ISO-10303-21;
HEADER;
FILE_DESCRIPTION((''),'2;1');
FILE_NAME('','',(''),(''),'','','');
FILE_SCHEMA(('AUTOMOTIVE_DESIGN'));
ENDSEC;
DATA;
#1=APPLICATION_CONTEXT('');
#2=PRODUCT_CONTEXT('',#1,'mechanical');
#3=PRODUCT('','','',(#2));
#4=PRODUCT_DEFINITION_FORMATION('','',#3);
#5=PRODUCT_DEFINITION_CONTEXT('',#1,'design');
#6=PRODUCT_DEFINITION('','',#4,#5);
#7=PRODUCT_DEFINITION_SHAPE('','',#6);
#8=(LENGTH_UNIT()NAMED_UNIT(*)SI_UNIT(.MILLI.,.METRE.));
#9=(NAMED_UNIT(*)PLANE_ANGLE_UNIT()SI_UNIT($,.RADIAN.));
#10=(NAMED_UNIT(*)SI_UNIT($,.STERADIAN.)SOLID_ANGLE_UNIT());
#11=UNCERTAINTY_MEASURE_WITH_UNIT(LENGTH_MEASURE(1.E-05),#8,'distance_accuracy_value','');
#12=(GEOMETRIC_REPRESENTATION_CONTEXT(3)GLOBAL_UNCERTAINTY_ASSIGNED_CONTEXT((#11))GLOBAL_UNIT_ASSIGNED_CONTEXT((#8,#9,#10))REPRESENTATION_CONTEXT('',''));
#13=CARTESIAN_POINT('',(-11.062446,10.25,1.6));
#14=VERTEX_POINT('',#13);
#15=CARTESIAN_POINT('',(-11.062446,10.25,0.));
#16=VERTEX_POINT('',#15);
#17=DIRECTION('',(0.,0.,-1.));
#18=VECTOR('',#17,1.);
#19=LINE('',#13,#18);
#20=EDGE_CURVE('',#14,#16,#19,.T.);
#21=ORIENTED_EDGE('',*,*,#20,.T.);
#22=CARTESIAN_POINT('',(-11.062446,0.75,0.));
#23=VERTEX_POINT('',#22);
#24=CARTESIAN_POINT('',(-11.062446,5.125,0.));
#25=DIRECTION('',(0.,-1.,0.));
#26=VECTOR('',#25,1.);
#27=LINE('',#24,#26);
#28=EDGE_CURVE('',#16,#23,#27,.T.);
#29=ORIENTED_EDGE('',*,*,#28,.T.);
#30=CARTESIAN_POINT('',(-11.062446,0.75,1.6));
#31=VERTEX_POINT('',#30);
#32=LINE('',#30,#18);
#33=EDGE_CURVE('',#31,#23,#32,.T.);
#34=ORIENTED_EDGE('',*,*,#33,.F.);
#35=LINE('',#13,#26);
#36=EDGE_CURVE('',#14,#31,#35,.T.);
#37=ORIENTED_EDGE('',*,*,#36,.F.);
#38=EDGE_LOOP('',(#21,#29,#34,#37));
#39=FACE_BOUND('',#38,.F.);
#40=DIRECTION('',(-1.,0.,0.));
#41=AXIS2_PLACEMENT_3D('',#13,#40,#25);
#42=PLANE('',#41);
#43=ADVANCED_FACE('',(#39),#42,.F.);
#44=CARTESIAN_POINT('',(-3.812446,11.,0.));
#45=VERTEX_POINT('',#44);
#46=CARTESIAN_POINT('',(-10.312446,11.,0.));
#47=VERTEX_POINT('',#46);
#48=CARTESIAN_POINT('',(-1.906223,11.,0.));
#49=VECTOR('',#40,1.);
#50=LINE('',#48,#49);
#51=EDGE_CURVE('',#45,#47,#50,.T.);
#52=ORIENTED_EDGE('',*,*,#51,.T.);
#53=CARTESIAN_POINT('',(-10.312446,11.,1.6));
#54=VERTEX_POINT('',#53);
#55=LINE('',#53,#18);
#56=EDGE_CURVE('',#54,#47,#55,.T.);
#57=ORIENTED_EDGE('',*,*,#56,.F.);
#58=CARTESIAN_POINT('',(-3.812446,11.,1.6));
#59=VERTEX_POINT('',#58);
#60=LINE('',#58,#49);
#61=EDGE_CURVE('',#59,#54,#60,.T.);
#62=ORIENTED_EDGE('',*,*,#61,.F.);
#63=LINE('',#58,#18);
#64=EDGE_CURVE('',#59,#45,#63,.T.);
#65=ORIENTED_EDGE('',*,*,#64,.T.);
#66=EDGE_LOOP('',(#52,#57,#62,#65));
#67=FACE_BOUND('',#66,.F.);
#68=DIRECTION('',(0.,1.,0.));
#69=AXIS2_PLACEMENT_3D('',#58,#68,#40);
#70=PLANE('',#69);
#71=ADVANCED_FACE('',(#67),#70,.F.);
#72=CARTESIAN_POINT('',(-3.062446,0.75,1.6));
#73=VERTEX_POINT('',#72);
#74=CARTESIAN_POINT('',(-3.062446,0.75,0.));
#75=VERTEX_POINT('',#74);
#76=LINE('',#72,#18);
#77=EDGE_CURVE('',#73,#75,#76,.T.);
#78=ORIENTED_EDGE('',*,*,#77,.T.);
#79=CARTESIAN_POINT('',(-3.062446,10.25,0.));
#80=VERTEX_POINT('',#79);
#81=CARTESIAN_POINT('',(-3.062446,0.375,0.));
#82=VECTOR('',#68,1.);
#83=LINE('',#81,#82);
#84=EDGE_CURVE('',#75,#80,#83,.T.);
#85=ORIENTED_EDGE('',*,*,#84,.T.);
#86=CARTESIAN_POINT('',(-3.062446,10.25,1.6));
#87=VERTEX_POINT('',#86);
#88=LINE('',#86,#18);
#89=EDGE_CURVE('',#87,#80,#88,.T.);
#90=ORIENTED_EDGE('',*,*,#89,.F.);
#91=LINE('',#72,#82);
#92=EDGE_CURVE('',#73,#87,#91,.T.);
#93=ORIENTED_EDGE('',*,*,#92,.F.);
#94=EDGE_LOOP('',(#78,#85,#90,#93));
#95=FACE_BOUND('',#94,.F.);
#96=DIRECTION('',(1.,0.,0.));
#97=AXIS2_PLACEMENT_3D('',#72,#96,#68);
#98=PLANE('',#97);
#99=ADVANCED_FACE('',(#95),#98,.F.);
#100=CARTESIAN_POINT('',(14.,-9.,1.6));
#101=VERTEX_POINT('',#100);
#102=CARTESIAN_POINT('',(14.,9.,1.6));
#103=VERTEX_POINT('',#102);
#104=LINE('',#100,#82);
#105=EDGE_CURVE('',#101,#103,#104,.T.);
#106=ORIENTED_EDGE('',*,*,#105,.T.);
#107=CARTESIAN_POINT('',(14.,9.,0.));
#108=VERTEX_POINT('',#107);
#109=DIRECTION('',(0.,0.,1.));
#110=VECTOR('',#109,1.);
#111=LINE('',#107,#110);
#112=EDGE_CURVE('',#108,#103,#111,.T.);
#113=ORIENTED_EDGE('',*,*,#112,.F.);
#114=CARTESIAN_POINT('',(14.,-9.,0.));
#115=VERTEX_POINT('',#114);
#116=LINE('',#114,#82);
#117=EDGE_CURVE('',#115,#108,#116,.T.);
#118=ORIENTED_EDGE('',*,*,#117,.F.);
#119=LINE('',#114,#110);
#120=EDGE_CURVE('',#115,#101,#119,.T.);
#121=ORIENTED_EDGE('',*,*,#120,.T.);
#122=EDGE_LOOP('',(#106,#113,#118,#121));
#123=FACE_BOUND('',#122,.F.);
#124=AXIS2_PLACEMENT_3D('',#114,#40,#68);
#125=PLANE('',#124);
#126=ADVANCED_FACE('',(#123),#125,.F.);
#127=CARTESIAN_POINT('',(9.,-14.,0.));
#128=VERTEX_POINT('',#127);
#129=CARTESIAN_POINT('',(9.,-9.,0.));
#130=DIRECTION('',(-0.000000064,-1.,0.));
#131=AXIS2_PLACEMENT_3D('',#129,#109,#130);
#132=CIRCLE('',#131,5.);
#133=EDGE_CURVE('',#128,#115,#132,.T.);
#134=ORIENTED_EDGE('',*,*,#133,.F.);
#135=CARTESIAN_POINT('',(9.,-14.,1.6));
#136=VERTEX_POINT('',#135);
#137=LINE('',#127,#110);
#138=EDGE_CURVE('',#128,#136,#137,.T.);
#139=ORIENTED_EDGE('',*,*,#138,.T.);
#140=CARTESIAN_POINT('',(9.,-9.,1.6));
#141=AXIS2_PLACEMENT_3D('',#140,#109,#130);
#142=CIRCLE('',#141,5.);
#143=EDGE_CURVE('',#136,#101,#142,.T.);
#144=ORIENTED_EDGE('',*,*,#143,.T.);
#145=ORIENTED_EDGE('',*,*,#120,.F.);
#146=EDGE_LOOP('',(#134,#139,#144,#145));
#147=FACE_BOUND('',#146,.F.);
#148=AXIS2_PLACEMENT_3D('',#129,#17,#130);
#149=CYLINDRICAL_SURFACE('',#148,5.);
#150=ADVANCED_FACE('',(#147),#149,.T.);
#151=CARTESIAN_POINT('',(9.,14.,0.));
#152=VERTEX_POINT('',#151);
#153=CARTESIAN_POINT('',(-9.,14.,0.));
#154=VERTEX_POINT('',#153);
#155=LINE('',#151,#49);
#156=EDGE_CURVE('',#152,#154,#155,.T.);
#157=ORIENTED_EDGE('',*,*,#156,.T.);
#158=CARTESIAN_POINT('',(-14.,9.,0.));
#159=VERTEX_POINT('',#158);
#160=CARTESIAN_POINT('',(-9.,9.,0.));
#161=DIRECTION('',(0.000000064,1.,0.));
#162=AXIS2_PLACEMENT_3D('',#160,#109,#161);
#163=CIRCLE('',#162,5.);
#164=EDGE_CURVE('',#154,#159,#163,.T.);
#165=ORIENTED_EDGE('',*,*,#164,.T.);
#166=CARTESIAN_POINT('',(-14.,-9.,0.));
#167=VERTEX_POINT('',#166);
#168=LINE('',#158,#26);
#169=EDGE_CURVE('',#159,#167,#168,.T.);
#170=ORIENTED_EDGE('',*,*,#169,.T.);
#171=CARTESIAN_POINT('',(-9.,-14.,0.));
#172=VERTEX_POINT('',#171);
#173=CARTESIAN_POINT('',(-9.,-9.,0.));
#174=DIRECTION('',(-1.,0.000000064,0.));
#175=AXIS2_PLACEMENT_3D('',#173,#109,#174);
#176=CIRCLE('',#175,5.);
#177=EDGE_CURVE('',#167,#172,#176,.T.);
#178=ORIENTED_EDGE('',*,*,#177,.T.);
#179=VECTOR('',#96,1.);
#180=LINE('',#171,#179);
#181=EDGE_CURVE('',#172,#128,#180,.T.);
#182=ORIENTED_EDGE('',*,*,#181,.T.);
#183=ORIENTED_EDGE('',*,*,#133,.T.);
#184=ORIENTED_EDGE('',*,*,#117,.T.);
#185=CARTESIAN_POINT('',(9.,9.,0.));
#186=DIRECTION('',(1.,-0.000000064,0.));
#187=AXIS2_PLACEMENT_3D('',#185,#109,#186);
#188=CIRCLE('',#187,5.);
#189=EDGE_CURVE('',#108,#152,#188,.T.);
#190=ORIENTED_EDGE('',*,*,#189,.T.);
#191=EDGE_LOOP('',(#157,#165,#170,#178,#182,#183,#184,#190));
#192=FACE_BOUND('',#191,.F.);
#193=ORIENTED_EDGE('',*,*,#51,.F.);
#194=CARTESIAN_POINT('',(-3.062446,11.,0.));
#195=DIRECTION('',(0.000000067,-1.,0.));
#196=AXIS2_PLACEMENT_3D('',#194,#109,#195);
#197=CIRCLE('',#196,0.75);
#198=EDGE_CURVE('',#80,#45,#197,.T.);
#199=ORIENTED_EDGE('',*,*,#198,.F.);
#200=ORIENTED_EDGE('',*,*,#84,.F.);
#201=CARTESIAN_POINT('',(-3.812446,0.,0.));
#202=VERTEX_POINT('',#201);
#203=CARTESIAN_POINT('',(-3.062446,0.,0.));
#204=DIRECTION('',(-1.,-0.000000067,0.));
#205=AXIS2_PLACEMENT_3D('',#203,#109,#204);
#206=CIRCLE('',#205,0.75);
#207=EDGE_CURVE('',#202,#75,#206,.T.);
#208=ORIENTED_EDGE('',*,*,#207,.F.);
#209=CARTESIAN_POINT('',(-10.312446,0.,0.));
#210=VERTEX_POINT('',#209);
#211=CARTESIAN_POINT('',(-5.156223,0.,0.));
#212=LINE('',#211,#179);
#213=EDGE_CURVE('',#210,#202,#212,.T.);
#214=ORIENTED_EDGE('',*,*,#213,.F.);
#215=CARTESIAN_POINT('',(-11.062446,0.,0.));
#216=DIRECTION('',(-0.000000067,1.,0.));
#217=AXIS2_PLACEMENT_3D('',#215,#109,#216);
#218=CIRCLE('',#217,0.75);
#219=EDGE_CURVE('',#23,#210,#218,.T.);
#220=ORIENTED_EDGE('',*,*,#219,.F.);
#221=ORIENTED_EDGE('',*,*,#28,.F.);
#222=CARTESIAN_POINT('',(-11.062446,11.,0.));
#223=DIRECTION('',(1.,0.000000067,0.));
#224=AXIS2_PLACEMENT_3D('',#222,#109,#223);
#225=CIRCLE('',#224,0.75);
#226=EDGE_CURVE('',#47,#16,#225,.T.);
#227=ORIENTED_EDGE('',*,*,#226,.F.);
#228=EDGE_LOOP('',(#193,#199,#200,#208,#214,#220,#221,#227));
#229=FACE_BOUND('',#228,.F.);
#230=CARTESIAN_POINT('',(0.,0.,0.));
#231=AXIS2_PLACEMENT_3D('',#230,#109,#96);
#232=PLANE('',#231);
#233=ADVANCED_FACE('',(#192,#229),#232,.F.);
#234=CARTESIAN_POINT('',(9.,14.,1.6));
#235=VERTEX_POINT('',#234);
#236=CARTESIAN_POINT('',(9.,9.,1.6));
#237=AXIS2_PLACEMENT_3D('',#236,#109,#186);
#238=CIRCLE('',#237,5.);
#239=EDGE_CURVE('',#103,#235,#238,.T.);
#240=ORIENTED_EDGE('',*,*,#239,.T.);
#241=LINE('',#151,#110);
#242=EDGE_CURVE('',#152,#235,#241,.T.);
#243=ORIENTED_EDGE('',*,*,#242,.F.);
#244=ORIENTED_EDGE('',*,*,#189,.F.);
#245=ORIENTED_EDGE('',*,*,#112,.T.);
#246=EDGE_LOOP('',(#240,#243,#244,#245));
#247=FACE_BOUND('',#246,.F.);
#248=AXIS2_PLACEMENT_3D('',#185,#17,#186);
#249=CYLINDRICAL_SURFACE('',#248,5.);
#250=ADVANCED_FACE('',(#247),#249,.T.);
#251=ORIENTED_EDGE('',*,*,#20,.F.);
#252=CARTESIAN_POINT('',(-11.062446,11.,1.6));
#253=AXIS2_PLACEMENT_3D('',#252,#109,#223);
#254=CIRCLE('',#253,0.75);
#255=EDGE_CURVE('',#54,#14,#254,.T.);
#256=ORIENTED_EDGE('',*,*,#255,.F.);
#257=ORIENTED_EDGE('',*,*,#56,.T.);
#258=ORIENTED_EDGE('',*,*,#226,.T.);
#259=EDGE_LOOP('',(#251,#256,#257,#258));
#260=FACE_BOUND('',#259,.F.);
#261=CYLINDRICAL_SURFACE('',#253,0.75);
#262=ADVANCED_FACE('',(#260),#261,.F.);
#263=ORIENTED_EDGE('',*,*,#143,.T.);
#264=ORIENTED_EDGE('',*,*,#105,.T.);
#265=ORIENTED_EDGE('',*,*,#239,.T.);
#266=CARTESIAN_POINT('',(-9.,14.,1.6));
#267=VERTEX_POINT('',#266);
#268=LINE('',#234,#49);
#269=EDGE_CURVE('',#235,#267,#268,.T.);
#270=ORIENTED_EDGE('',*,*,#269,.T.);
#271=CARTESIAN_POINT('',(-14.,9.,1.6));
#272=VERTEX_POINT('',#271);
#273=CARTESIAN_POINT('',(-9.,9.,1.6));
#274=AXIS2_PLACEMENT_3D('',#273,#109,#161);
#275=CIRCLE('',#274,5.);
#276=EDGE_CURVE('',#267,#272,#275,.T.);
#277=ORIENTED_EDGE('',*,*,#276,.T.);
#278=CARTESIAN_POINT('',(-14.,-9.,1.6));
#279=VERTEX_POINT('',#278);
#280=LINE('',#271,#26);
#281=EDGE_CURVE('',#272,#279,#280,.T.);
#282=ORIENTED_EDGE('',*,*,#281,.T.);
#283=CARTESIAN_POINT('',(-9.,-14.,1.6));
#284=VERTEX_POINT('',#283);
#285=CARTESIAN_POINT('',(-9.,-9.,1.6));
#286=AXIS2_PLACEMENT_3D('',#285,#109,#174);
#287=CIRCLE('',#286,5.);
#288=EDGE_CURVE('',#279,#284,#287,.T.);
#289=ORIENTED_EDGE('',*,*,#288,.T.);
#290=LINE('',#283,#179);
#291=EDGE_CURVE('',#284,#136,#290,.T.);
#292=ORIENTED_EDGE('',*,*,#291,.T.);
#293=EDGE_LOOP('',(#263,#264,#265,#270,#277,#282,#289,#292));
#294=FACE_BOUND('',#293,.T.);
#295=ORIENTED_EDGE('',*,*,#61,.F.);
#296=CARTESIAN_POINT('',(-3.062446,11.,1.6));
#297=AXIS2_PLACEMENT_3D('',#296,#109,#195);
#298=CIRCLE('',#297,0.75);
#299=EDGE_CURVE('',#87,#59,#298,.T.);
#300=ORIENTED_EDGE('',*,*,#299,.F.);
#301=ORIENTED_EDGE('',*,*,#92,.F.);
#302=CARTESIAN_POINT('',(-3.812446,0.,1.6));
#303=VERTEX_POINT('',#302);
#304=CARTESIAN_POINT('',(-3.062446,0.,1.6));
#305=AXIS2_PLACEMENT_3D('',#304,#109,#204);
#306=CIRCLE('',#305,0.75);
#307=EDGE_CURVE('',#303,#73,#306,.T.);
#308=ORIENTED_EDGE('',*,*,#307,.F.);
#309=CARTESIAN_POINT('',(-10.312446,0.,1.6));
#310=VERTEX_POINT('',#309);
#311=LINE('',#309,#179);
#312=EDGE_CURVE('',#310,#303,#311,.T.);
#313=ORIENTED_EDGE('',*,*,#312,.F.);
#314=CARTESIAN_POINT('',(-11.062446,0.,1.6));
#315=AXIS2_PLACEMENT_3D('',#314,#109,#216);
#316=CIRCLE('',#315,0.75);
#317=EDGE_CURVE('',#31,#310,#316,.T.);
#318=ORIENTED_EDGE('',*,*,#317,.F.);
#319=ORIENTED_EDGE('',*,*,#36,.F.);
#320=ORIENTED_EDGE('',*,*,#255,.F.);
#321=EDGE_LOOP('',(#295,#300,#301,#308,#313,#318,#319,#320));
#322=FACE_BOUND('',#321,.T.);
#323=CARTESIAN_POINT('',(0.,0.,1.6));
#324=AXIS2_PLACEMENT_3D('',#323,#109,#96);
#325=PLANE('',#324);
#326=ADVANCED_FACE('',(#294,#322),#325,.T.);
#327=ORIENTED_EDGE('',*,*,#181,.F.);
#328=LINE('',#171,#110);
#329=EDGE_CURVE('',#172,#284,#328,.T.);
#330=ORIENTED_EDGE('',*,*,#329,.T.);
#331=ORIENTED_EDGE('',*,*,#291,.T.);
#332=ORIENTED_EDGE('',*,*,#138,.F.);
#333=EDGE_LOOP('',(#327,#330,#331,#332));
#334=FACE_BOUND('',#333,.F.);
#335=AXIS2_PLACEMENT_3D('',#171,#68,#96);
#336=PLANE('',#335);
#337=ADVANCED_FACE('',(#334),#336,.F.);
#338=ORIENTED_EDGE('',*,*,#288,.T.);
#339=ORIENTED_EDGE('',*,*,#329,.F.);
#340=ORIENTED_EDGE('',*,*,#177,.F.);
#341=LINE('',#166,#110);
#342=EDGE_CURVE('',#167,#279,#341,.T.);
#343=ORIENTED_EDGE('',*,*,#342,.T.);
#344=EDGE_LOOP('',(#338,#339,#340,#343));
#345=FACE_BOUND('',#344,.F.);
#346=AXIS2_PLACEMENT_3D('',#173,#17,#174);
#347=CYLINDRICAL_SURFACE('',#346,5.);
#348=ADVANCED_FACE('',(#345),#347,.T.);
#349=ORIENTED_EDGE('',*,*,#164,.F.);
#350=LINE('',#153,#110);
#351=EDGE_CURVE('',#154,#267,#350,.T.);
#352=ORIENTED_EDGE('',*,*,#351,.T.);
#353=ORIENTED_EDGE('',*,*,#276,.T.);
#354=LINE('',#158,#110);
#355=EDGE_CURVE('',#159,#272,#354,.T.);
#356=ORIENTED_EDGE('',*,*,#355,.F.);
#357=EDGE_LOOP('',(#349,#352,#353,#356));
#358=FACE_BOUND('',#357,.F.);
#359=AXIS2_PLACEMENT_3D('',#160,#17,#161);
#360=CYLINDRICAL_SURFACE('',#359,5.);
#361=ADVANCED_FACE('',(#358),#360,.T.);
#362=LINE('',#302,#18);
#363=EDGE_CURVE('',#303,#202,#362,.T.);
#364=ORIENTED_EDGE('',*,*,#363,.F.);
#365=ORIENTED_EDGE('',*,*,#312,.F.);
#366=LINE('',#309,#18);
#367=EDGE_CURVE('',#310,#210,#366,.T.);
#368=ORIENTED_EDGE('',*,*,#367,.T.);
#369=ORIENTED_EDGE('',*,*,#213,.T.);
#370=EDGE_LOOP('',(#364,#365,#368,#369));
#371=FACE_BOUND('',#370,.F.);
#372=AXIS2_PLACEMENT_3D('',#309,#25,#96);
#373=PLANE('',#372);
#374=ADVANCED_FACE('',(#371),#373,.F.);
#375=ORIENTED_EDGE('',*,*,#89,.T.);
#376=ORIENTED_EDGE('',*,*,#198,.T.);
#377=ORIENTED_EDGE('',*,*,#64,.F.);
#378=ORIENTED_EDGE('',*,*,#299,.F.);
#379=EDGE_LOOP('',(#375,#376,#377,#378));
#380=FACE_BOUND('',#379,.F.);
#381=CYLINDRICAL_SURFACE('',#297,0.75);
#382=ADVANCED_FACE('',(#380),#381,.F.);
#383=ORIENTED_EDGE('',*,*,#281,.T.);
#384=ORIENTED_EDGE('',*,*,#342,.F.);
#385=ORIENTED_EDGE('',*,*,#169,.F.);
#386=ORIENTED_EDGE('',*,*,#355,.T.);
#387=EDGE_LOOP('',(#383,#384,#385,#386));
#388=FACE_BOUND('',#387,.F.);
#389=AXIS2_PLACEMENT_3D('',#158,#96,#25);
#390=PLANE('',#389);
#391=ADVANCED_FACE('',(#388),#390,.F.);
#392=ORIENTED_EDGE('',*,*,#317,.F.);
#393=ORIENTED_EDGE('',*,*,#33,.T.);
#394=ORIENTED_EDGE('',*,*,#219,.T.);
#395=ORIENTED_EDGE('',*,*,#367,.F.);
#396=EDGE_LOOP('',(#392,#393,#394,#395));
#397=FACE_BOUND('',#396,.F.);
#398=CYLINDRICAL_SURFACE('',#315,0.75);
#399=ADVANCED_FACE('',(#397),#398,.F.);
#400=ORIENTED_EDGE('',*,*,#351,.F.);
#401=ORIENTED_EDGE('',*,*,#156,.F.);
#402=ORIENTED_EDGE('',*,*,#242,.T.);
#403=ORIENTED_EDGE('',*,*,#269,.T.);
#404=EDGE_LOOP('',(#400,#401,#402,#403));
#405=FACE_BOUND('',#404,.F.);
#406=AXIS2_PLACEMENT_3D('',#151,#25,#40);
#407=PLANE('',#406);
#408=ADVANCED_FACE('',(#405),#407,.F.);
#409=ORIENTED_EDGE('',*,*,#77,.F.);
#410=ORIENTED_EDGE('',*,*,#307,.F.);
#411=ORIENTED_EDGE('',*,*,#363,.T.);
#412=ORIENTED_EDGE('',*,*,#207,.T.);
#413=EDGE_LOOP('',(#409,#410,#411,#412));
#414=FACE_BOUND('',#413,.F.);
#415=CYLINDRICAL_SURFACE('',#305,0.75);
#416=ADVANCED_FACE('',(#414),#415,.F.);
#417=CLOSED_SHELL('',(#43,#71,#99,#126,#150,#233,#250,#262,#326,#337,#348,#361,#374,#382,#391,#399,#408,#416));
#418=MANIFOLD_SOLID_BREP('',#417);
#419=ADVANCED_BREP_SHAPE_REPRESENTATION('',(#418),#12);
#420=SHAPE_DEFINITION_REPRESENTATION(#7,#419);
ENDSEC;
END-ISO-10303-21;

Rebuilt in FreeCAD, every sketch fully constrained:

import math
import FreeCAD as App
import Part
import Sketcher
from FreeCAD import Vector

doc = App.newDocument("Part")
body = doc.addObject("PartDesign::Body", "Body")

sketch1 = body.newObject("Sketcher::SketchObject", "Sketch")
sketch1.AttachmentSupport = (doc.getObject("XY_Plane"), [""])
sketch1.MapMode = "FlatFace"
sketch1.addGeometry(Part.LineSegment(Vector(9, 14, 0), Vector(-9, 14, 0)), False)
sketch1.addGeometry(Part.ArcOfCircle(Part.Circle(Vector(-9, 9, 0), Vector(0, 0, 1), 5), math.radians(90), math.radians(180)), False)
sketch1.addGeometry(Part.LineSegment(Vector(-14, 9, 0), Vector(-14, -9, 0)), False)
sketch1.addGeometry(Part.ArcOfCircle(Part.Circle(Vector(-9, -9, 0), Vector(0, 0, 1), 5), math.radians(180), math.radians(270)), False)
sketch1.addGeometry(Part.LineSegment(Vector(-9, -14, 0), Vector(9, -14, 0)), False)
sketch1.addGeometry(Part.ArcOfCircle(Part.Circle(Vector(9, -9, 0), Vector(0, 0, 1), 5), math.radians(-90), math.radians(0)), False)
sketch1.addGeometry(Part.LineSegment(Vector(14, -9, 0), Vector(14, 9, 0)), False)
sketch1.addGeometry(Part.ArcOfCircle(Part.Circle(Vector(9, 9, 0), Vector(0, 0, 1), 5), math.radians(0), math.radians(90)), False)
sketch1.addConstraint(Sketcher.Constraint("Tangent", 0, 2, 1, 1))
sketch1.addConstraint(Sketcher.Constraint("Tangent", 1, 2, 2, 1))
sketch1.addConstraint(Sketcher.Constraint("Tangent", 2, 2, 3, 1))
sketch1.addConstraint(Sketcher.Constraint("Tangent", 3, 2, 4, 1))
sketch1.addConstraint(Sketcher.Constraint("Tangent", 4, 2, 5, 1))
sketch1.addConstraint(Sketcher.Constraint("Tangent", 5, 2, 6, 1))
sketch1.addConstraint(Sketcher.Constraint("Tangent", 6, 2, 7, 1))
sketch1.addConstraint(Sketcher.Constraint("Tangent", 7, 2, 0, 1))
sketch1.addConstraint(Sketcher.Constraint("Horizontal", 0))
sketch1.addConstraint(Sketcher.Constraint("Vertical", 2))
sketch1.addConstraint(Sketcher.Constraint("Horizontal", 4))
sketch1.addConstraint(Sketcher.Constraint("Vertical", 6))
sketch1.addConstraint(Sketcher.Constraint("Equal", 1, 3))
sketch1.addConstraint(Sketcher.Constraint("Equal", 3, 5))
sketch1.addConstraint(Sketcher.Constraint("Equal", 5, 7))
sketch1.addConstraint(Sketcher.Constraint("Symmetric", 1, 3, 5, 3, -1, 1))
sketch1.addConstraint(Sketcher.Constraint("Equal", 4, 2))
sketch1.addConstraint(Sketcher.Constraint("Radius", 1, 5.0))
sketch1.addConstraint(Sketcher.Constraint("DistanceX", 0, 2, 0, 1, 18.0))
pad1 = body.newObject("PartDesign::Pad", "Pad")
pad1.Profile = sketch1
pad1.Length = 1.6

sketch2 = body.newObject("Sketcher::SketchObject", "Sketch001")
sketch2.AttachmentSupport = (doc.getObject("XY_Plane"), [""])
sketch2.MapMode = "FlatFace"
sketch2.AttachmentOffset = App.Placement(Vector(0, 0, 1.6), App.Rotation())
sketch2.addGeometry(Part.LineSegment(Vector(-3.8, 11, 0), Vector(-10.3, 11, 0)), False)
sketch2.addGeometry(Part.ArcOfCircle(Part.Circle(Vector(-11.1, 11, 0), Vector(0, 0, 1), 0.7), math.radians(0), math.radians(270)), False)
sketch2.addGeometry(Part.LineSegment(Vector(-11.1, 10.2, 0), Vector(-11.1, 0.8, 0)), False)
sketch2.addGeometry(Part.ArcOfCircle(Part.Circle(Vector(-11.1, 0, 0), Vector(0, 0, 1), 0.7), math.radians(90), math.radians(360)), False)
sketch2.addGeometry(Part.LineSegment(Vector(-10.3, 0, 0), Vector(-3.8, 0, 0)), False)
sketch2.addGeometry(Part.ArcOfCircle(Part.Circle(Vector(-3.1, 0, 0), Vector(0, 0, 1), 0.7), math.radians(-180), math.radians(90)), False)
sketch2.addGeometry(Part.LineSegment(Vector(-3.1, 0.8, 0), Vector(-3.1, 10.2, 0)), False)
sketch2.addGeometry(Part.ArcOfCircle(Part.Circle(Vector(-3.1, 11, 0), Vector(0, 0, 1), 0.7), math.radians(-90), math.radians(180)), False)
sketch2.addConstraint(Sketcher.Constraint("Coincident", 0, 2, 1, 1))
sketch2.addConstraint(Sketcher.Constraint("Coincident", 1, 2, 2, 1))
sketch2.addConstraint(Sketcher.Constraint("Coincident", 2, 2, 3, 1))
sketch2.addConstraint(Sketcher.Constraint("Coincident", 3, 2, 4, 1))
sketch2.addConstraint(Sketcher.Constraint("Coincident", 4, 2, 5, 1))
sketch2.addConstraint(Sketcher.Constraint("Coincident", 5, 2, 6, 1))
sketch2.addConstraint(Sketcher.Constraint("Coincident", 6, 2, 7, 1))
sketch2.addConstraint(Sketcher.Constraint("Coincident", 7, 2, 0, 1))
sketch2.addConstraint(Sketcher.Constraint("Horizontal", 0))
sketch2.addConstraint(Sketcher.Constraint("Vertical", 2))
sketch2.addConstraint(Sketcher.Constraint("Horizontal", 4))
sketch2.addConstraint(Sketcher.Constraint("Vertical", 6))
sketch2.addConstraint(Sketcher.Constraint("Equal", 1, 3))
sketch2.addConstraint(Sketcher.Constraint("Equal", 3, 5))
sketch2.addConstraint(Sketcher.Constraint("Equal", 5, 7))
sketch2.addConstraint(Sketcher.Constraint("PointOnObject", 3, 3, -1))
sketch2.addConstraint(Sketcher.Constraint("PointOnObject", 5, 3, -1))
sketch2.addConstraint(Sketcher.Constraint("PointOnObject", 3, 2, -1))
sketch2.addConstraint(Sketcher.Constraint("Horizontal", 1, 3, 7, 3))
sketch2.addConstraint(Sketcher.Constraint("Horizontal", 7, 3, 0, 2))
sketch2.addConstraint(Sketcher.Constraint("Vertical", 1, 3, 3, 3))
sketch2.addConstraint(Sketcher.Constraint("Vertical", 5, 3, 7, 3))
sketch2.addConstraint(Sketcher.Constraint("Vertical", 3, 3, 1, 2))
sketch2.addConstraint(Sketcher.Constraint("Vertical", 7, 3, 5, 2))
sketch2.addConstraint(Sketcher.Constraint("Radius", 1, 0.75))
sketch2.addConstraint(Sketcher.Constraint("DistanceX", 0, 2, 0, 1, 6.5))
sketch2.addConstraint(Sketcher.Constraint("DistanceY", 2, 2, 2, 1, 9.5))
sketch2.addConstraint(Sketcher.Constraint("DistanceX", 1, 3, -1, 1, 11.062446))
pocket1 = body.newObject("PartDesign::Pocket", "Pocket")
pocket1.Profile = sketch2
pocket1.Type = "ThroughAll"

doc.recompute()
